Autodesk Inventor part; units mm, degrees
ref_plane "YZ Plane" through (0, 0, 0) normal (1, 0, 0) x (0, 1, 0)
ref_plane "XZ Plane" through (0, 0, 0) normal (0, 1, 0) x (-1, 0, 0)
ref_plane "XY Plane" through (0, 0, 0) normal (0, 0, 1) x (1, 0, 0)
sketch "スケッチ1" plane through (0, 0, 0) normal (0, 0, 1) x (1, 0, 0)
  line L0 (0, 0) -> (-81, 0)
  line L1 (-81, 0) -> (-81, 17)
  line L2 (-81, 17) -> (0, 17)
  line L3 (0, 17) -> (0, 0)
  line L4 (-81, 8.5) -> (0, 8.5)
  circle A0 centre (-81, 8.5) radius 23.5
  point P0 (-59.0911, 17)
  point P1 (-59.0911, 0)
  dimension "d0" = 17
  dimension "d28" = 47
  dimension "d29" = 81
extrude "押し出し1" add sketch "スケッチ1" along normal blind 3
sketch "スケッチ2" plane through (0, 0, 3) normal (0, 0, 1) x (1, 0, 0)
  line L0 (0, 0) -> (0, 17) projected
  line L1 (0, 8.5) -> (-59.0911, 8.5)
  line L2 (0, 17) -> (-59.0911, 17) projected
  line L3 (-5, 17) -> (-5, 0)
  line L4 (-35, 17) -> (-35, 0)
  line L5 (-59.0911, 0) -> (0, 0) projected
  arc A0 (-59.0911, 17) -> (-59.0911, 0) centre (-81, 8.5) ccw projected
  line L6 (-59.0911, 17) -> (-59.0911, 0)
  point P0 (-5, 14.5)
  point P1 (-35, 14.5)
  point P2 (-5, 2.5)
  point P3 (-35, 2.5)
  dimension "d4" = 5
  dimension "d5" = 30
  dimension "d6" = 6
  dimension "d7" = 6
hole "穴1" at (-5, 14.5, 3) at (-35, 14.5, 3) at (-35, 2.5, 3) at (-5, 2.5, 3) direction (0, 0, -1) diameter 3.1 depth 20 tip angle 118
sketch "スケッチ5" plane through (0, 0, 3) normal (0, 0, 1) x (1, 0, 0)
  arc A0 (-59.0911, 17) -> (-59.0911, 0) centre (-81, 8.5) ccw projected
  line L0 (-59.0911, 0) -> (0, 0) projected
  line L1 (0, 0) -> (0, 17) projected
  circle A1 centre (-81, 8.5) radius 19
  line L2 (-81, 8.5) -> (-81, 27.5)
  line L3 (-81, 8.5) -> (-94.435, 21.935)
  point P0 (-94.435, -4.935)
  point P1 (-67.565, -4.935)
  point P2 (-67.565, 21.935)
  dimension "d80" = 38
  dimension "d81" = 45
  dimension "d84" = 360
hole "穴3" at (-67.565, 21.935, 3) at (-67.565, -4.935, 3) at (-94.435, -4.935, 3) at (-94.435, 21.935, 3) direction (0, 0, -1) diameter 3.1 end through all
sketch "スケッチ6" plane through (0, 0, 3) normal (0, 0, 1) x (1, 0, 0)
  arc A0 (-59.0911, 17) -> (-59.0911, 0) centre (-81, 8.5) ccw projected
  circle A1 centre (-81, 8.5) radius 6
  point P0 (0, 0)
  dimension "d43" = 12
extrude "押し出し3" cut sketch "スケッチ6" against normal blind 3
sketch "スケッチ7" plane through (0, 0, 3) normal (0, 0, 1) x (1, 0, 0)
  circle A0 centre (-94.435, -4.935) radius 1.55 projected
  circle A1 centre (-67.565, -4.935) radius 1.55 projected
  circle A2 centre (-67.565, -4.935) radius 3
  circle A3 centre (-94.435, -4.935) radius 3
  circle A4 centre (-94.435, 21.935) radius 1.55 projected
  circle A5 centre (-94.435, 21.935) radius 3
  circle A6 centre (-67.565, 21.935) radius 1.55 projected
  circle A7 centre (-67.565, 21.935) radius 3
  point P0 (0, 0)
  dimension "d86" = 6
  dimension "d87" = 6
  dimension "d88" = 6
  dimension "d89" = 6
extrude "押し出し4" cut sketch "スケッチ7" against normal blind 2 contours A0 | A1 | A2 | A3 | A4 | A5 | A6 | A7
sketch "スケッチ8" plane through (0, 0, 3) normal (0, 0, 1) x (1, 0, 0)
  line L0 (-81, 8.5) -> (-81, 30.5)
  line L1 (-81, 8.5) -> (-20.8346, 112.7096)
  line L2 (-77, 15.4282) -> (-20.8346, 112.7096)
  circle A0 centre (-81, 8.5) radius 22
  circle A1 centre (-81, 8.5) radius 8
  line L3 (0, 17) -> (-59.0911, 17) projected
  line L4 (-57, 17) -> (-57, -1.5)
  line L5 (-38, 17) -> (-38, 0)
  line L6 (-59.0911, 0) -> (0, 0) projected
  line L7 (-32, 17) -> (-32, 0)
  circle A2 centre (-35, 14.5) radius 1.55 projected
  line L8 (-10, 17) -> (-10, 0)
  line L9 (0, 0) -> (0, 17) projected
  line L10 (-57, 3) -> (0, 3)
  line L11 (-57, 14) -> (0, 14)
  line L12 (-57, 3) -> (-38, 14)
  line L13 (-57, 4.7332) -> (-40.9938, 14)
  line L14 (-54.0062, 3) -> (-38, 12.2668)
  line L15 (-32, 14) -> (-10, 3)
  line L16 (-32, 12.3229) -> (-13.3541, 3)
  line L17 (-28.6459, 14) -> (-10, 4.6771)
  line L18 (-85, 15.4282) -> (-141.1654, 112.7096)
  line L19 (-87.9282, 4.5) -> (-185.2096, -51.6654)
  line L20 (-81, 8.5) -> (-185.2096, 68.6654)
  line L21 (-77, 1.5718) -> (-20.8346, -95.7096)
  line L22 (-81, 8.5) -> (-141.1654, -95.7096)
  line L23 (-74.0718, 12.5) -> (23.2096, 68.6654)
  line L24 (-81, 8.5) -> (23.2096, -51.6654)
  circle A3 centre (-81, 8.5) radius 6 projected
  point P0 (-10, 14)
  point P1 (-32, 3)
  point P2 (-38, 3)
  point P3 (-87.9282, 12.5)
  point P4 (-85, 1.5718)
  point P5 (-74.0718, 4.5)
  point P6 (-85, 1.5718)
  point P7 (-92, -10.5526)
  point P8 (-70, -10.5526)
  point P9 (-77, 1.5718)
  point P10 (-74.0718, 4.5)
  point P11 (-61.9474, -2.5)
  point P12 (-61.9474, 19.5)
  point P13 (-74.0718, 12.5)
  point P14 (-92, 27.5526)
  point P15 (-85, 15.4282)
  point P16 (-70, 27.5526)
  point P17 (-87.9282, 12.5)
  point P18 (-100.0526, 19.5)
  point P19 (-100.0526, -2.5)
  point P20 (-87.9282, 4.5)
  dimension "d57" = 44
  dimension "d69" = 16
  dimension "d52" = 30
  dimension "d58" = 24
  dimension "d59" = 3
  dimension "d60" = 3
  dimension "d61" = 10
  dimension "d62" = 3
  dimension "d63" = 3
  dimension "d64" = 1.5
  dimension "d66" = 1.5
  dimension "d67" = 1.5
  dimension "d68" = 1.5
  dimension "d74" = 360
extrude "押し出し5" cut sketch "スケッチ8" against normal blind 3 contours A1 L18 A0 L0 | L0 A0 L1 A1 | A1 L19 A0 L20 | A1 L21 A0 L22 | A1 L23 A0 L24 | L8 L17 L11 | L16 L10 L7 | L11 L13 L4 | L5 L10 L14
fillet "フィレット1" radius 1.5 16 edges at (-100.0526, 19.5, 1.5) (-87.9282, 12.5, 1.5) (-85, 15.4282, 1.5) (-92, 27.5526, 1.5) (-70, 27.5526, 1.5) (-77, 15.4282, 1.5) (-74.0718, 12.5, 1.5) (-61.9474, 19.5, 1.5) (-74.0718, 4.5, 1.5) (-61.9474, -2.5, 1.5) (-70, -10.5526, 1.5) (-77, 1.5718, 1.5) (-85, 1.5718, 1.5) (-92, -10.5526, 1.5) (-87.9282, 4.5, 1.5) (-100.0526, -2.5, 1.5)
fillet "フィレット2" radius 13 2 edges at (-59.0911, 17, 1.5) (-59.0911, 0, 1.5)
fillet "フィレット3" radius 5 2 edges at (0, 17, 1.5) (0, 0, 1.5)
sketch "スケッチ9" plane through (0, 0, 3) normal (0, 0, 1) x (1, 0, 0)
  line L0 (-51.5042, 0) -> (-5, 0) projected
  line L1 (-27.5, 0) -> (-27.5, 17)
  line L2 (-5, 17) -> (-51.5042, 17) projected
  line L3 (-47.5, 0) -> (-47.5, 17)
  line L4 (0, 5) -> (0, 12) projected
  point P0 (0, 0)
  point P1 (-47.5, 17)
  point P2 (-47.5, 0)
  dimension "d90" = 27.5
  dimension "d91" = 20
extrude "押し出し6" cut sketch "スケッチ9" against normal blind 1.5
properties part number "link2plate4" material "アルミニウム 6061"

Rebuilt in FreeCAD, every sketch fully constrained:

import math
import FreeCAD as App
import Part
import Sketcher
Q = App.Units.Quantity


def edges_at(feature, points):
    """Names of the edges that pass closest to the given points."""
    edges = feature.Shape.Edges
    near = lambda p: min(range(len(edges)), key=lambda i: edges[i].distToShape(Part.Vertex(*p))[0])
    return sorted({f"Edge{near(p) + 1}" for p in points})

doc = App.newDocument("Part")
params = doc.addObject("Spreadsheet::Sheet", "Params")
for row, (alias, value) in enumerate([
    ("sketch1_radius", "23.5 mm"),
    ("sketch1_height", "17 mm"),
    ("pad1_length", "3 mm"),
    ("sketch2_diameter", "3.1 mm"),
    ("hole_diameter", "3.1 mm"),
    ("hole_depth", "20 mm"),
    ("sketch3_diameter", "3.1 mm"),
    ("hole2_diameter", "3.1 mm"),
    ("sketch4_diameter", "12 mm"),
    ("pocket1_length", "3 mm"),
    ("sketch5_diameter", "6 mm"),
    ("pocket2_length", "2 mm"),
    ("sketch6_radius", "8 mm"),
    ("sketch6_radius2", "22 mm"),
    ("pocket3_length", "3 mm"),
    ("fillet_radius", "1.5 mm"),
    ("fillet2_radius", "13 mm"),
    ("fillet3_radius", "5 mm"),
    ("sketch7_width", "20 mm"),
    ("sketch7_height", "17 mm"),
    ("pocket4_length", "1.5 mm"),
], start=1):
    params.set(f"A{row}", alias)
    params.set(f"B{row}", "=" + value)
    params.setAlias(f"B{row}", alias)

body = doc.addObject("PartDesign::Body", "Body")

# Sketch on XY plane
sketch1 = body.newObject("Sketcher::SketchObject", "Sketch")
sketch1.AttachmentSupport = (doc.getObject("XY_Plane"), [""])
sketch1.MapMode = "FlatFace"
sketch1.addGeometry([
    Part.LineSegment(App.Vector(-59, 0, 0), App.Vector(0, 0, 0)),
    Part.LineSegment(App.Vector(0, 0, 0), App.Vector(0, 17, 0)),
    Part.LineSegment(App.Vector(0, 17, 0), App.Vector(-59, 17, 0)),
    Part.ArcOfCircle(Part.Circle(App.Vector(-81, 8, 0), App.Vector(0, 0, 1), 24), math.radians(21), math.radians(339)),
], False)
sketch1.addConstraint([
    Sketcher.Constraint("Coincident", 0, 2, 1, 1),
    Sketcher.Constraint("Coincident", 1, 2, 2, 1),
    Sketcher.Constraint("Coincident", 2, 2, 3, 1),
    Sketcher.Constraint("Coincident", 3, 2, 0, 1),
    Sketcher.Constraint("Horizontal", 0),
    Sketcher.Constraint("Vertical", 1),
    Sketcher.Constraint("Horizontal", 2),
    Sketcher.Constraint("Coincident", 0, 2, -1, 1),
    Sketcher.Constraint("Vertical", 2, 2, 3, 2),
    Sketcher.Constraint("Radius", 3, Q("23.5 mm")),
    Sketcher.Constraint("DistanceY", 1, 1, 1, 2, Q("17 mm")),
    Sketcher.Constraint("DistanceX", 3, 3, -1, 1, Q("81 mm")),
])
sketch1.setExpression("Constraints[9]", "Params.sketch1_radius")
sketch1.setExpression("Constraints[10]", "Params.sketch1_height")
pad1 = body.newObject("PartDesign::Pad", "Pad")
pad1.Profile = sketch1
pad1.setExpression("Length", "Params.pad1_length")

# Sketch on XY plane
sketch2 = body.newObject("Sketcher::SketchObject", "Sketch001")
sketch2.AttachmentSupport = (doc.getObject("XY_Plane"), [""])
sketch2.MapMode = "FlatFace"
sketch2.AttachmentOffset = App.Placement(App.Vector(0, 0, 3), App.Rotation())
sketch2.addGeometry([
    Part.Circle(App.Vector(-5, 14.5, 0), App.Vector(0, 0, 1), 1.6),
    Part.Circle(App.Vector(-35, 14.5, 0), App.Vector(0, 0, 1), 1.6),
    Part.Circle(App.Vector(-35, 2.5, 0), App.Vector(0, 0, 1), 1.6),
    Part.Circle(App.Vector(-5, 2.5, 0), App.Vector(0, 0, 1), 1.6),
], False)
sketch2.addConstraint([
    Sketcher.Constraint("Equal", 0, 1),
    Sketcher.Constraint("Equal", 1, 2),
    Sketcher.Constraint("Equal", 2, 3),
    Sketcher.Constraint("Horizontal", 0, 3, 1, 3),
    Sketcher.Constraint("Horizontal", 2, 3, 3, 3),
    Sketcher.Constraint("Vertical", 1, 3, 2, 3),
    Sketcher.Constraint("Vertical", 0, 3, 3, 3),
    Sketcher.Constraint("Diameter", 0, Q("3.1 mm")),
    Sketcher.Constraint("DistanceX", 0, 3, -1, 1, Q("5 mm")),
    Sketcher.Constraint("DistanceX", 1, 3, -1, 1, Q("35 mm")),
    Sketcher.Constraint("DistanceY", 2, 3, 1, 3, Q("12 mm")),
    Sketcher.Constraint("DistanceY", -1, 1, 0, 3, Q("14.5 mm")),
])
sketch2.setExpression("Constraints[7]", "Params.sketch2_diameter")
doc.recompute()
hole = body.newObject("PartDesign::Hole", "Hole")
hole.Profile = sketch2
hole.ThreadType = "None"
hole.setExpression("Diameter", "Params.hole_diameter")
hole.DepthType = "Dimension"
hole.setExpression("Depth", "Params.hole_depth")
hole.DrillPoint = "Angled"
hole.DrillPointAngle = 118

# Sketch on XY plane
sketch3 = body.newObject("Sketcher::SketchObject", "Sketch002")
sketch3.AttachmentSupport = (doc.getObject("XY_Plane"), [""])
sketch3.MapMode = "FlatFace"
sketch3.AttachmentOffset = App.Placement(App.Vector(0, 0, 3), App.Rotation())
sketch3.addGeometry([
    Part.Circle(App.Vector(-67.6, 21.9, 0), App.Vector(0, 0, 1), 1.6),
    Part.Circle(App.Vector(-67.6, -4.9, 0), App.Vector(0, 0, 1), 1.6),
    Part.Circle(App.Vector(-94.4, -4.9, 0), App.Vector(0, 0, 1), 1.6),
    Part.Circle(App.Vector(-94.4, 21.9, 0), App.Vector(0, 0, 1), 1.6),
], False)
sketch3.addConstraint([
    Sketcher.Constraint("Equal", 0, 1),
    Sketcher.Constraint("Equal", 1, 2),
    Sketcher.Constraint("Equal", 2, 3),
    Sketcher.Constraint("Horizontal", 1, 3, 2, 3),
    Sketcher.Constraint("Horizontal", 0, 3, 3, 3),
    Sketcher.Constraint("Vertical", 0, 3, 1, 3),
    Sketcher.Constraint("Vertical", 2, 3, 3, 3),
    Sketcher.Constraint("Diameter", 0, Q("3.1 mm")),
    Sketcher.Constraint("DistanceY", 1, 3, 0, 3, Q("26.87 mm")),
    Sketcher.Constraint("DistanceX", 2, 3, 1, 3, Q("26.87 mm")),
    Sketcher.Constraint("DistanceX", 0, 3, -1, 1, Q("67.565 mm")),
    Sketcher.Constraint("DistanceY", -1, 1, 0, 3, Q("21.935 mm")),
])
sketch3.setExpression("Constraints[7]", "Params.sketch3_diameter")
doc.recompute()
hole2 = body.newObject("PartDesign::Hole", "Hole001")
hole2.Profile = sketch3
hole2.ThreadType = "None"
hole2.setExpression("Diameter", "Params.hole2_diameter")
hole2.DepthType = "ThroughAll"

# Sketch on XY plane
sketch4 = body.newObject("Sketcher::SketchObject", "Sketch003")
sketch4.AttachmentSupport = (doc.getObject("XY_Plane"), [""])
sketch4.MapMode = "FlatFace"
sketch4.AttachmentOffset = App.Placement(App.Vector(0, 0, 3), App.Rotation())
sketch4.addGeometry(Part.Circle(App.Vector(-81, 8, 0), App.Vector(0, 0, 1), 6), False)
sketch4.addConstraint([
    Sketcher.Constraint("Diameter", 0, Q("12 mm")),
    Sketcher.Constraint("DistanceX", 0, 3, -1, 1, Q("81 mm")),
    Sketcher.Constraint("DistanceY", -1, 1, 0, 3, Q("8.5 mm")),
])
sketch4.setExpression("Constraints[0]", "Params.sketch4_diameter")
pocket1 = body.newObject("PartDesign::Pocket", "Pocket")
pocket1.Profile = sketch4
pocket1.setExpression("Length", "Params.pocket1_length")

# Sketch on XY plane
sketch5 = body.newObject("Sketcher::SketchObject", "Sketch004")
sketch5.AttachmentSupport = (doc.getObject("XY_Plane"), [""])
sketch5.MapMode = "FlatFace"
sketch5.AttachmentOffset = App.Placement(App.Vector(0, 0, 3), App.Rotation())
sketch5.addGeometry([
    Part.Circle(App.Vector(-94.4, -4.9, 0), App.Vector(0, 0, 1), 3),
    Part.Circle(App.Vector(-67.6, -4.9, 0), App.Vector(0, 0, 1), 3),
    Part.Circle(App.Vector(-94.4, 21.9, 0), App.Vector(0, 0, 1), 3),
    Part.Circle(App.Vector(-67.6, 21.9, 0), App.Vector(0, 0, 1), 3),
], False)
sketch5.addConstraint([
    Sketcher.Constraint("Equal", 0, 1),
    Sketcher.Constraint("Equal", 1, 2),
    Sketcher.Constraint("Equal", 2, 3),
    Sketcher.Constraint("Horizontal", 0, 3, 1, 3),
    Sketcher.Constraint("Horizontal", 2, 3, 3, 3),
    Sketcher.Constraint("Vertical", 0, 3, 2, 3),
    Sketcher.Constraint("Vertical", 1, 3, 3, 3),
    Sketcher.Constraint("Diameter", 0, Q("6 mm")),
    Sketcher.Constraint("DistanceX", 0, 3, 1, 3, Q("26.87 mm")),
    Sketcher.Constraint("DistanceY", 0, 3, 2, 3, Q("26.87 mm")),
    Sketcher.Constraint("DistanceX", 0, 3, -1, 1, Q("94.435 mm")),
    Sketcher.Constraint("DistanceY", 0, 3, -1, 1, Q("4.935 mm")),
])
sketch5.setExpression("Constraints[7]", "Params.sketch5_diameter")
pocket2 = body.newObject("PartDesign::Pocket", "Pocket001")
pocket2.Profile = sketch5
pocket2.setExpression("Length", "Params.pocket2_length")

# Sketch on XY plane
sketch6 = body.newObject("Sketcher::SketchObject", "Sketch005")
sketch6.AttachmentSupport = (doc.getObject("XY_Plane"), [""])
sketch6.MapMode = "FlatFace"
sketch6.AttachmentOffset = App.Placement(App.Vector(0, 0, 3), App.Rotation())
sketch6.addGeometry([
    Part.ArcOfCircle(Part.Circle(App.Vector(-81, 8, 0), App.Vector(0, 0, 1), 8), math.radians(60), math.radians(120)),  # 0
    Part.LineSegment(App.Vector(-77, 15, 0), App.Vector(-70, 28, 0)),  # 1
    Part.ArcOfCircle(Part.Circle(App.Vector(-81, 8, 0), App.Vector(0, 0, 1), 22), math.radians(60), math.radians(120)),  # 2
    Part.LineSegment(App.Vector(-92, 28, 0), App.Vector(-85, 15, 0)),  # 3
    Part.ArcOfCircle(Part.Circle(App.Vector(-81, 8, 0), App.Vector(0, 0, 1), 8), math.radians(150), math.radians(210)),  # 4
    Part.LineSegment(App.Vector(-88, 12, 0), App.Vector(-100, 19, 0)),  # 5
    Part.ArcOfCircle(Part.Circle(App.Vector(-81, 8, 0), App.Vector(0, 0, 1), 22), math.radians(150), math.radians(210)),  # 6
    Part.LineSegment(App.Vector(-100, -2, 0), App.Vector(-88, 4, 0)),  # 7
    Part.ArcOfCircle(Part.Circle(App.Vector(-81, 8, 0), App.Vector(0, 0, 1), 8), math.radians(-120), math.radians(-60)),  # 8
    Part.LineSegment(App.Vector(-85, 2, 0), App.Vector(-92, -11, 0)),  # 9
    Part.ArcOfCircle(Part.Circle(App.Vector(-81, 8, 0), App.Vector(0, 0, 1), 22), math.radians(-120), math.radians(-60)),  # 10
    Part.LineSegment(App.Vector(-70, -11, 0), App.Vector(-77, 2, 0)),  # 11
    Part.ArcOfCircle(Part.Circle(App.Vector(-81, 8, 0), App.Vector(0, 0, 1), 8), math.radians(-30), math.radians(30)),  # 12
    Part.LineSegment(App.Vector(-74, 5, 0), App.Vector(-62, -2, 0)),  # 13
    Part.ArcOfCircle(Part.Circle(App.Vector(-81, 8, 0), App.Vector(0, 0, 1), 22), math.radians(-30), math.radians(30)),  # 14
    Part.LineSegment(App.Vector(-62, 19, 0), App.Vector(-74, 12, 0)),  # 15
    Part.LineSegment(App.Vector(-10, 5, 0), App.Vector(-10, 14, 0)),  # 16
    Part.LineSegment(App.Vector(-10, 14, 0), App.Vector(-29, 14, 0)),  # 17
    Part.LineSegment(App.Vector(-29, 14, 0), App.Vector(-10, 5, 0)),  # 18
    Part.LineSegment(App.Vector(-13, 3, 0), App.Vector(-32, 12, 0)),  # 19
    Part.LineSegment(App.Vector(-32, 12, 0), App.Vector(-32, 3, 0)),  # 20
    Part.LineSegment(App.Vector(-32, 3, 0), App.Vector(-13, 3, 0)),  # 21
    Part.LineSegment(App.Vector(-41, 14, 0), App.Vector(-57, 14, 0)),  # 22
    Part.LineSegment(App.Vector(-57, 14, 0), App.Vector(-57, 5, 0)),  # 23
    Part.LineSegment(App.Vector(-57, 5, 0), App.Vector(-41, 14, 0)),  # 24
    Part.LineSegment(App.Vector(-38, 3, 0), App.Vector(-38, 12, 0)),  # 25
    Part.LineSegment(App.Vector(-38, 12, 0), App.Vector(-54, 3, 0)),  # 26
    Part.LineSegment(App.Vector(-54, 3, 0), App.Vector(-38, 3, 0)),  # 27
], False)
sketch6.addConstraint([
    Sketcher.Constraint("Coincident", 0, 1, 1, 1),
    Sketcher.Constraint("Coincident", 1, 2, 2, 1),
    Sketcher.Constraint("Coincident", 2, 2, 3, 1),
    Sketcher.Constraint("Coincident", 3, 2, 0, 2),
    Sketcher.Constraint("Coincident", 4, 1, 5, 1),
    Sketcher.Constraint("Coincident", 5, 2, 6, 1),
    Sketcher.Constraint("Coincident", 6, 2, 7, 1),
    Sketcher.Constraint("Coincident", 7, 2, 4, 2),
    Sketcher.Constraint("Coincident", 8, 1, 9, 1),
    Sketcher.Constraint("Coincident", 9, 2, 10, 1),
    Sketcher.Constraint("Coincident", 10, 2, 11, 1),
    Sketcher.Constraint("Coincident", 11, 2, 8, 2),
    Sketcher.Constraint("Coincident", 12, 1, 13, 1),
    Sketcher.Constraint("Coincident", 13, 2, 14, 1),
    Sketcher.Constraint("Coincident", 14, 2, 15, 1),
    Sketcher.Constraint("Coincident", 15, 2, 12, 2),
    Sketcher.Constraint("Coincident", 16, 2, 17, 1),
    Sketcher.Constraint("Coincident", 17, 2, 18, 1),
    Sketcher.Constraint("Coincident", 18, 2, 16, 1),
    Sketcher.Constraint("Coincident", 19, 2, 20, 1),
    Sketcher.Constraint("Coincident", 20, 2, 21, 1),
    Sketcher.Constraint("Coincident", 21, 2, 19, 1),
    Sketcher.Constraint("Coincident", 22, 2, 23, 1),
    Sketcher.Constraint("Coincident", 23, 2, 24, 1),
    Sketcher.Constraint("Coincident", 24, 2, 22, 1),
    Sketcher.Constraint("Coincident", 25, 2, 26, 1),
    Sketcher.Constraint("Coincident", 26, 2, 27, 1),
    Sketcher.Constraint("Coincident", 27, 2, 25, 1),
    Sketcher.Constraint("Vertical", 16),
    Sketcher.Constraint("Horizontal", 17),
    Sketcher.Constraint("Vertical", 20),
    Sketcher.Constraint("Horizontal", 21),
    Sketcher.Constraint("Horizontal", 22),
    Sketcher.Constraint("Vertical", 23),
    Sketcher.Constraint("Vertical", 25),
    Sketcher.Constraint("Horizontal", 27),
    Sketcher.Constraint("Coincident", 2, 3, 0, 3),
    Sketcher.Constraint("Coincident", 4, 3, 0, 3),
    Sketcher.Constraint("Coincident", 6, 3, 0, 3),
    Sketcher.Constraint("Coincident", 8, 3, 0, 3),
    Sketcher.Constraint("Coincident", 10, 3, 0, 3),
    Sketcher.Constraint("Coincident", 12, 3, 0, 3),
    Sketcher.Constraint("Coincident", 14, 3, 0, 3),
    Sketcher.Constraint("Equal", 0, 4),
    Sketcher.Constraint("Equal", 2, 6),
    Sketcher.Constraint("Equal", 4, 8),
    Sketcher.Constraint("Equal", 6, 10),
    Sketcher.Constraint("Equal", 8, 12),
    Sketcher.Constraint("Equal", 10, 14),
    Sketcher.Constraint("Perpendicular", 1, 5),
    Sketcher.Constraint("Perpendicular", 3, 7),
    Sketcher.Constraint("Perpendicular", 5, 9),
    Sketcher.Constraint("Perpendicular", 7, 11),
    Sketcher.Constraint("Perpendicular", 9, 13),
    Sketcher.Constraint("Perpendicular", 11, 15),
    Sketcher.Constraint("Parallel", 18, 19),
    Sketcher.Constraint("Parallel", 24, 26),
    Sketcher.Constraint("Horizontal", 1, 2, 2, 2),
    Sketcher.Constraint("Horizontal", 0, 1, 3, 2),
    Sketcher.Constraint("Horizontal", 9, 2, 10, 2),
    Sketcher.Constraint("Horizontal", 7, 2, 12, 1),
    Sketcher.Constraint("Horizontal", 5, 2, 14, 2),
    Sketcher.Constraint("Horizontal", 17, 2, 22, 2),
    Sketcher.Constraint("Horizontal", 21, 2, 26, 2),
    Sketcher.Constraint("Vertical", 5, 2, 6, 2),
    Sketcher.Constraint("Vertical", 3, 2, 8, 1),
    Sketcher.Constraint("Equal", 17, 21),
    Sketcher.Constraint("Equal", 22, 27),
    Sketcher.Constraint("Radius", 0, Q("8 mm")),
    Sketcher.Constraint("Radius", 2, Q("22 mm")),
    Sketcher.Constraint("Angle", 7, Q("30 deg")),
    Sketcher.Constraint("DistanceX", 16, 2, -1, 1, Q("10 mm")),
    Sketcher.Constraint("DistanceY", -1, 1, 20, 2, Q("3 mm")),
    Sketcher.Constraint("DistanceY", 15, 2, 16, 2, Q("1.5 mm")),
    Sketcher.Constraint("DistanceX", 0, 3, -1, 1, Q("81 mm")),
    Sketcher.Constraint("DistanceX", 0, 1, -1, 1, Q("77 mm")),
    Sketcher.Constraint("DistanceY", -1, 1, 16, 2, Q("14 mm")),
    Sketcher.Constraint("DistanceX", 19, 2, -1, 1, Q("32 mm")),
    Sketcher.Constraint("DistanceX", 22, 2, -1, 1, Q("57 mm")),
    Sketcher.Constraint("DistanceX", 25, 2, -1, 1, Q("38 mm")),
    Sketcher.Constraint("DistanceY", 0, 3, 4, 1, Q("4 mm")),
    Sketcher.Constraint("DistanceX", 17, 2, 17, 1, Q("18.646 mm")),
    Sketcher.Constraint("DistanceY", 16, 1, 16, 2, Q("9.323 mm")),
    Sketcher.Constraint("DistanceX", 22, 2, 22, 1, Q("16.0062 mm")),
    Sketcher.Constraint("DistanceY", 23, 2, 23, 1, Q("9.2668 mm")),
])
sketch6.setExpression("Constraints[68]", "Params.sketch6_radius")
sketch6.setExpression("Constraints[69]", "Params.sketch6_radius2")
pocket3 = body.newObject("PartDesign::Pocket", "Pocket002")
pocket3.Profile = sketch6
pocket3.setExpression("Length", "Params.pocket3_length")
doc.recompute()

fillet = body.newObject("PartDesign::Fillet", "Fillet")
fillet.Base = (pocket3, edges_at(pocket3, [
    (-100.053, 19.5, 1.5),
    (-87.928, 12.5, 1.5),
    (-85, 15.428, 1.5),
    (-92, 27.553, 1.5),
    (-70, 27.553, 1.5),
    (-77, 15.428, 1.5),
    (-74.072, 12.5, 1.5),
    (-61.947, 19.5, 1.5),
    (-74.072, 4.5, 1.5),
    (-61.947, -2.5, 1.5),
    (-70, -10.553, 1.5),
    (-77, 1.572, 1.5),
    (-85, 1.572, 1.5),
    (-92, -10.553, 1.5),
    (-87.928, 4.5, 1.5),
    (-100.053, -2.5, 1.5),
]))
fillet.setExpression("Radius", "Params.fillet_radius")
doc.recompute()

fillet2 = body.newObject("PartDesign::Fillet", "Fillet001")
fillet2.Base = (fillet, edges_at(fillet, [(-59.091, 17, 1.5), (-59.091, 0, 1.5)]))
fillet2.setExpression("Radius", "Params.fillet2_radius")
doc.recompute()

fillet3 = body.newObject("PartDesign::Fillet", "Fillet002")
fillet3.Base = (fillet2, edges_at(fillet2, [(0, 17, 1.5), (0, 0, 1.5)]))
fillet3.setExpression("Radius", "Params.fillet3_radius")

# Sketch on XY plane
sketch7 = body.newObject("Sketcher::SketchObject", "Sketch006")
sketch7.AttachmentSupport = (doc.getObject("XY_Plane"), [""])
sketch7.MapMode = "FlatFace"
sketch7.AttachmentOffset = App.Placement(App.Vector(0, 0, 3), App.Rotation())
sketch7.addGeometry([
    Part.LineSegment(App.Vector(-48, 17, 0), App.Vector(-48, 0, 0)),
    Part.LineSegment(App.Vector(-48, 0, 0), App.Vector(-28, 0, 0)),
    Part.LineSegment(App.Vector(-28, 0, 0), App.Vector(-28, 17, 0)),
    Part.LineSegment(App.Vector(-28, 17, 0), App.Vector(-48, 17, 0)),
], False)
sketch7.addConstraint([
    Sketcher.Constraint("Coincident", 0, 2, 1, 1),
    Sketcher.Constraint("Coincident", 1, 2, 2, 1),
    Sketcher.Constraint("Coincident", 2, 2, 3, 1),
    Sketcher.Constraint("Coincident", 3, 2, 0, 1),
    Sketcher.Constraint("Vertical", 0),
    Sketcher.Constraint("Horizontal", 1),
    Sketcher.Constraint("Vertical", 2),
    Sketcher.Constraint("Horizontal", 3),
    Sketcher.Constraint("PointOnObject", 0, 2, -1),
    Sketcher.Constraint("DistanceX", 1, 1, 1, 2, Q("20 mm")),
    Sketcher.Constraint("DistanceX", 1, 2, -1, 1, Q("27.5 mm")),
    Sketcher.Constraint("DistanceY", 0, 2, 0, 1, Q("17 mm")),
])
sketch7.setExpression("Constraints[9]", "Params.sketch7_width")
sketch7.setExpression("Constraints[11]", "Params.sketch7_height")
pocket4 = body.newObject("PartDesign::Pocket", "Pocket003")
pocket4.Profile = sketch7
pocket4.setExpression("Length", "Params.pocket4_length")

doc.recompute()
